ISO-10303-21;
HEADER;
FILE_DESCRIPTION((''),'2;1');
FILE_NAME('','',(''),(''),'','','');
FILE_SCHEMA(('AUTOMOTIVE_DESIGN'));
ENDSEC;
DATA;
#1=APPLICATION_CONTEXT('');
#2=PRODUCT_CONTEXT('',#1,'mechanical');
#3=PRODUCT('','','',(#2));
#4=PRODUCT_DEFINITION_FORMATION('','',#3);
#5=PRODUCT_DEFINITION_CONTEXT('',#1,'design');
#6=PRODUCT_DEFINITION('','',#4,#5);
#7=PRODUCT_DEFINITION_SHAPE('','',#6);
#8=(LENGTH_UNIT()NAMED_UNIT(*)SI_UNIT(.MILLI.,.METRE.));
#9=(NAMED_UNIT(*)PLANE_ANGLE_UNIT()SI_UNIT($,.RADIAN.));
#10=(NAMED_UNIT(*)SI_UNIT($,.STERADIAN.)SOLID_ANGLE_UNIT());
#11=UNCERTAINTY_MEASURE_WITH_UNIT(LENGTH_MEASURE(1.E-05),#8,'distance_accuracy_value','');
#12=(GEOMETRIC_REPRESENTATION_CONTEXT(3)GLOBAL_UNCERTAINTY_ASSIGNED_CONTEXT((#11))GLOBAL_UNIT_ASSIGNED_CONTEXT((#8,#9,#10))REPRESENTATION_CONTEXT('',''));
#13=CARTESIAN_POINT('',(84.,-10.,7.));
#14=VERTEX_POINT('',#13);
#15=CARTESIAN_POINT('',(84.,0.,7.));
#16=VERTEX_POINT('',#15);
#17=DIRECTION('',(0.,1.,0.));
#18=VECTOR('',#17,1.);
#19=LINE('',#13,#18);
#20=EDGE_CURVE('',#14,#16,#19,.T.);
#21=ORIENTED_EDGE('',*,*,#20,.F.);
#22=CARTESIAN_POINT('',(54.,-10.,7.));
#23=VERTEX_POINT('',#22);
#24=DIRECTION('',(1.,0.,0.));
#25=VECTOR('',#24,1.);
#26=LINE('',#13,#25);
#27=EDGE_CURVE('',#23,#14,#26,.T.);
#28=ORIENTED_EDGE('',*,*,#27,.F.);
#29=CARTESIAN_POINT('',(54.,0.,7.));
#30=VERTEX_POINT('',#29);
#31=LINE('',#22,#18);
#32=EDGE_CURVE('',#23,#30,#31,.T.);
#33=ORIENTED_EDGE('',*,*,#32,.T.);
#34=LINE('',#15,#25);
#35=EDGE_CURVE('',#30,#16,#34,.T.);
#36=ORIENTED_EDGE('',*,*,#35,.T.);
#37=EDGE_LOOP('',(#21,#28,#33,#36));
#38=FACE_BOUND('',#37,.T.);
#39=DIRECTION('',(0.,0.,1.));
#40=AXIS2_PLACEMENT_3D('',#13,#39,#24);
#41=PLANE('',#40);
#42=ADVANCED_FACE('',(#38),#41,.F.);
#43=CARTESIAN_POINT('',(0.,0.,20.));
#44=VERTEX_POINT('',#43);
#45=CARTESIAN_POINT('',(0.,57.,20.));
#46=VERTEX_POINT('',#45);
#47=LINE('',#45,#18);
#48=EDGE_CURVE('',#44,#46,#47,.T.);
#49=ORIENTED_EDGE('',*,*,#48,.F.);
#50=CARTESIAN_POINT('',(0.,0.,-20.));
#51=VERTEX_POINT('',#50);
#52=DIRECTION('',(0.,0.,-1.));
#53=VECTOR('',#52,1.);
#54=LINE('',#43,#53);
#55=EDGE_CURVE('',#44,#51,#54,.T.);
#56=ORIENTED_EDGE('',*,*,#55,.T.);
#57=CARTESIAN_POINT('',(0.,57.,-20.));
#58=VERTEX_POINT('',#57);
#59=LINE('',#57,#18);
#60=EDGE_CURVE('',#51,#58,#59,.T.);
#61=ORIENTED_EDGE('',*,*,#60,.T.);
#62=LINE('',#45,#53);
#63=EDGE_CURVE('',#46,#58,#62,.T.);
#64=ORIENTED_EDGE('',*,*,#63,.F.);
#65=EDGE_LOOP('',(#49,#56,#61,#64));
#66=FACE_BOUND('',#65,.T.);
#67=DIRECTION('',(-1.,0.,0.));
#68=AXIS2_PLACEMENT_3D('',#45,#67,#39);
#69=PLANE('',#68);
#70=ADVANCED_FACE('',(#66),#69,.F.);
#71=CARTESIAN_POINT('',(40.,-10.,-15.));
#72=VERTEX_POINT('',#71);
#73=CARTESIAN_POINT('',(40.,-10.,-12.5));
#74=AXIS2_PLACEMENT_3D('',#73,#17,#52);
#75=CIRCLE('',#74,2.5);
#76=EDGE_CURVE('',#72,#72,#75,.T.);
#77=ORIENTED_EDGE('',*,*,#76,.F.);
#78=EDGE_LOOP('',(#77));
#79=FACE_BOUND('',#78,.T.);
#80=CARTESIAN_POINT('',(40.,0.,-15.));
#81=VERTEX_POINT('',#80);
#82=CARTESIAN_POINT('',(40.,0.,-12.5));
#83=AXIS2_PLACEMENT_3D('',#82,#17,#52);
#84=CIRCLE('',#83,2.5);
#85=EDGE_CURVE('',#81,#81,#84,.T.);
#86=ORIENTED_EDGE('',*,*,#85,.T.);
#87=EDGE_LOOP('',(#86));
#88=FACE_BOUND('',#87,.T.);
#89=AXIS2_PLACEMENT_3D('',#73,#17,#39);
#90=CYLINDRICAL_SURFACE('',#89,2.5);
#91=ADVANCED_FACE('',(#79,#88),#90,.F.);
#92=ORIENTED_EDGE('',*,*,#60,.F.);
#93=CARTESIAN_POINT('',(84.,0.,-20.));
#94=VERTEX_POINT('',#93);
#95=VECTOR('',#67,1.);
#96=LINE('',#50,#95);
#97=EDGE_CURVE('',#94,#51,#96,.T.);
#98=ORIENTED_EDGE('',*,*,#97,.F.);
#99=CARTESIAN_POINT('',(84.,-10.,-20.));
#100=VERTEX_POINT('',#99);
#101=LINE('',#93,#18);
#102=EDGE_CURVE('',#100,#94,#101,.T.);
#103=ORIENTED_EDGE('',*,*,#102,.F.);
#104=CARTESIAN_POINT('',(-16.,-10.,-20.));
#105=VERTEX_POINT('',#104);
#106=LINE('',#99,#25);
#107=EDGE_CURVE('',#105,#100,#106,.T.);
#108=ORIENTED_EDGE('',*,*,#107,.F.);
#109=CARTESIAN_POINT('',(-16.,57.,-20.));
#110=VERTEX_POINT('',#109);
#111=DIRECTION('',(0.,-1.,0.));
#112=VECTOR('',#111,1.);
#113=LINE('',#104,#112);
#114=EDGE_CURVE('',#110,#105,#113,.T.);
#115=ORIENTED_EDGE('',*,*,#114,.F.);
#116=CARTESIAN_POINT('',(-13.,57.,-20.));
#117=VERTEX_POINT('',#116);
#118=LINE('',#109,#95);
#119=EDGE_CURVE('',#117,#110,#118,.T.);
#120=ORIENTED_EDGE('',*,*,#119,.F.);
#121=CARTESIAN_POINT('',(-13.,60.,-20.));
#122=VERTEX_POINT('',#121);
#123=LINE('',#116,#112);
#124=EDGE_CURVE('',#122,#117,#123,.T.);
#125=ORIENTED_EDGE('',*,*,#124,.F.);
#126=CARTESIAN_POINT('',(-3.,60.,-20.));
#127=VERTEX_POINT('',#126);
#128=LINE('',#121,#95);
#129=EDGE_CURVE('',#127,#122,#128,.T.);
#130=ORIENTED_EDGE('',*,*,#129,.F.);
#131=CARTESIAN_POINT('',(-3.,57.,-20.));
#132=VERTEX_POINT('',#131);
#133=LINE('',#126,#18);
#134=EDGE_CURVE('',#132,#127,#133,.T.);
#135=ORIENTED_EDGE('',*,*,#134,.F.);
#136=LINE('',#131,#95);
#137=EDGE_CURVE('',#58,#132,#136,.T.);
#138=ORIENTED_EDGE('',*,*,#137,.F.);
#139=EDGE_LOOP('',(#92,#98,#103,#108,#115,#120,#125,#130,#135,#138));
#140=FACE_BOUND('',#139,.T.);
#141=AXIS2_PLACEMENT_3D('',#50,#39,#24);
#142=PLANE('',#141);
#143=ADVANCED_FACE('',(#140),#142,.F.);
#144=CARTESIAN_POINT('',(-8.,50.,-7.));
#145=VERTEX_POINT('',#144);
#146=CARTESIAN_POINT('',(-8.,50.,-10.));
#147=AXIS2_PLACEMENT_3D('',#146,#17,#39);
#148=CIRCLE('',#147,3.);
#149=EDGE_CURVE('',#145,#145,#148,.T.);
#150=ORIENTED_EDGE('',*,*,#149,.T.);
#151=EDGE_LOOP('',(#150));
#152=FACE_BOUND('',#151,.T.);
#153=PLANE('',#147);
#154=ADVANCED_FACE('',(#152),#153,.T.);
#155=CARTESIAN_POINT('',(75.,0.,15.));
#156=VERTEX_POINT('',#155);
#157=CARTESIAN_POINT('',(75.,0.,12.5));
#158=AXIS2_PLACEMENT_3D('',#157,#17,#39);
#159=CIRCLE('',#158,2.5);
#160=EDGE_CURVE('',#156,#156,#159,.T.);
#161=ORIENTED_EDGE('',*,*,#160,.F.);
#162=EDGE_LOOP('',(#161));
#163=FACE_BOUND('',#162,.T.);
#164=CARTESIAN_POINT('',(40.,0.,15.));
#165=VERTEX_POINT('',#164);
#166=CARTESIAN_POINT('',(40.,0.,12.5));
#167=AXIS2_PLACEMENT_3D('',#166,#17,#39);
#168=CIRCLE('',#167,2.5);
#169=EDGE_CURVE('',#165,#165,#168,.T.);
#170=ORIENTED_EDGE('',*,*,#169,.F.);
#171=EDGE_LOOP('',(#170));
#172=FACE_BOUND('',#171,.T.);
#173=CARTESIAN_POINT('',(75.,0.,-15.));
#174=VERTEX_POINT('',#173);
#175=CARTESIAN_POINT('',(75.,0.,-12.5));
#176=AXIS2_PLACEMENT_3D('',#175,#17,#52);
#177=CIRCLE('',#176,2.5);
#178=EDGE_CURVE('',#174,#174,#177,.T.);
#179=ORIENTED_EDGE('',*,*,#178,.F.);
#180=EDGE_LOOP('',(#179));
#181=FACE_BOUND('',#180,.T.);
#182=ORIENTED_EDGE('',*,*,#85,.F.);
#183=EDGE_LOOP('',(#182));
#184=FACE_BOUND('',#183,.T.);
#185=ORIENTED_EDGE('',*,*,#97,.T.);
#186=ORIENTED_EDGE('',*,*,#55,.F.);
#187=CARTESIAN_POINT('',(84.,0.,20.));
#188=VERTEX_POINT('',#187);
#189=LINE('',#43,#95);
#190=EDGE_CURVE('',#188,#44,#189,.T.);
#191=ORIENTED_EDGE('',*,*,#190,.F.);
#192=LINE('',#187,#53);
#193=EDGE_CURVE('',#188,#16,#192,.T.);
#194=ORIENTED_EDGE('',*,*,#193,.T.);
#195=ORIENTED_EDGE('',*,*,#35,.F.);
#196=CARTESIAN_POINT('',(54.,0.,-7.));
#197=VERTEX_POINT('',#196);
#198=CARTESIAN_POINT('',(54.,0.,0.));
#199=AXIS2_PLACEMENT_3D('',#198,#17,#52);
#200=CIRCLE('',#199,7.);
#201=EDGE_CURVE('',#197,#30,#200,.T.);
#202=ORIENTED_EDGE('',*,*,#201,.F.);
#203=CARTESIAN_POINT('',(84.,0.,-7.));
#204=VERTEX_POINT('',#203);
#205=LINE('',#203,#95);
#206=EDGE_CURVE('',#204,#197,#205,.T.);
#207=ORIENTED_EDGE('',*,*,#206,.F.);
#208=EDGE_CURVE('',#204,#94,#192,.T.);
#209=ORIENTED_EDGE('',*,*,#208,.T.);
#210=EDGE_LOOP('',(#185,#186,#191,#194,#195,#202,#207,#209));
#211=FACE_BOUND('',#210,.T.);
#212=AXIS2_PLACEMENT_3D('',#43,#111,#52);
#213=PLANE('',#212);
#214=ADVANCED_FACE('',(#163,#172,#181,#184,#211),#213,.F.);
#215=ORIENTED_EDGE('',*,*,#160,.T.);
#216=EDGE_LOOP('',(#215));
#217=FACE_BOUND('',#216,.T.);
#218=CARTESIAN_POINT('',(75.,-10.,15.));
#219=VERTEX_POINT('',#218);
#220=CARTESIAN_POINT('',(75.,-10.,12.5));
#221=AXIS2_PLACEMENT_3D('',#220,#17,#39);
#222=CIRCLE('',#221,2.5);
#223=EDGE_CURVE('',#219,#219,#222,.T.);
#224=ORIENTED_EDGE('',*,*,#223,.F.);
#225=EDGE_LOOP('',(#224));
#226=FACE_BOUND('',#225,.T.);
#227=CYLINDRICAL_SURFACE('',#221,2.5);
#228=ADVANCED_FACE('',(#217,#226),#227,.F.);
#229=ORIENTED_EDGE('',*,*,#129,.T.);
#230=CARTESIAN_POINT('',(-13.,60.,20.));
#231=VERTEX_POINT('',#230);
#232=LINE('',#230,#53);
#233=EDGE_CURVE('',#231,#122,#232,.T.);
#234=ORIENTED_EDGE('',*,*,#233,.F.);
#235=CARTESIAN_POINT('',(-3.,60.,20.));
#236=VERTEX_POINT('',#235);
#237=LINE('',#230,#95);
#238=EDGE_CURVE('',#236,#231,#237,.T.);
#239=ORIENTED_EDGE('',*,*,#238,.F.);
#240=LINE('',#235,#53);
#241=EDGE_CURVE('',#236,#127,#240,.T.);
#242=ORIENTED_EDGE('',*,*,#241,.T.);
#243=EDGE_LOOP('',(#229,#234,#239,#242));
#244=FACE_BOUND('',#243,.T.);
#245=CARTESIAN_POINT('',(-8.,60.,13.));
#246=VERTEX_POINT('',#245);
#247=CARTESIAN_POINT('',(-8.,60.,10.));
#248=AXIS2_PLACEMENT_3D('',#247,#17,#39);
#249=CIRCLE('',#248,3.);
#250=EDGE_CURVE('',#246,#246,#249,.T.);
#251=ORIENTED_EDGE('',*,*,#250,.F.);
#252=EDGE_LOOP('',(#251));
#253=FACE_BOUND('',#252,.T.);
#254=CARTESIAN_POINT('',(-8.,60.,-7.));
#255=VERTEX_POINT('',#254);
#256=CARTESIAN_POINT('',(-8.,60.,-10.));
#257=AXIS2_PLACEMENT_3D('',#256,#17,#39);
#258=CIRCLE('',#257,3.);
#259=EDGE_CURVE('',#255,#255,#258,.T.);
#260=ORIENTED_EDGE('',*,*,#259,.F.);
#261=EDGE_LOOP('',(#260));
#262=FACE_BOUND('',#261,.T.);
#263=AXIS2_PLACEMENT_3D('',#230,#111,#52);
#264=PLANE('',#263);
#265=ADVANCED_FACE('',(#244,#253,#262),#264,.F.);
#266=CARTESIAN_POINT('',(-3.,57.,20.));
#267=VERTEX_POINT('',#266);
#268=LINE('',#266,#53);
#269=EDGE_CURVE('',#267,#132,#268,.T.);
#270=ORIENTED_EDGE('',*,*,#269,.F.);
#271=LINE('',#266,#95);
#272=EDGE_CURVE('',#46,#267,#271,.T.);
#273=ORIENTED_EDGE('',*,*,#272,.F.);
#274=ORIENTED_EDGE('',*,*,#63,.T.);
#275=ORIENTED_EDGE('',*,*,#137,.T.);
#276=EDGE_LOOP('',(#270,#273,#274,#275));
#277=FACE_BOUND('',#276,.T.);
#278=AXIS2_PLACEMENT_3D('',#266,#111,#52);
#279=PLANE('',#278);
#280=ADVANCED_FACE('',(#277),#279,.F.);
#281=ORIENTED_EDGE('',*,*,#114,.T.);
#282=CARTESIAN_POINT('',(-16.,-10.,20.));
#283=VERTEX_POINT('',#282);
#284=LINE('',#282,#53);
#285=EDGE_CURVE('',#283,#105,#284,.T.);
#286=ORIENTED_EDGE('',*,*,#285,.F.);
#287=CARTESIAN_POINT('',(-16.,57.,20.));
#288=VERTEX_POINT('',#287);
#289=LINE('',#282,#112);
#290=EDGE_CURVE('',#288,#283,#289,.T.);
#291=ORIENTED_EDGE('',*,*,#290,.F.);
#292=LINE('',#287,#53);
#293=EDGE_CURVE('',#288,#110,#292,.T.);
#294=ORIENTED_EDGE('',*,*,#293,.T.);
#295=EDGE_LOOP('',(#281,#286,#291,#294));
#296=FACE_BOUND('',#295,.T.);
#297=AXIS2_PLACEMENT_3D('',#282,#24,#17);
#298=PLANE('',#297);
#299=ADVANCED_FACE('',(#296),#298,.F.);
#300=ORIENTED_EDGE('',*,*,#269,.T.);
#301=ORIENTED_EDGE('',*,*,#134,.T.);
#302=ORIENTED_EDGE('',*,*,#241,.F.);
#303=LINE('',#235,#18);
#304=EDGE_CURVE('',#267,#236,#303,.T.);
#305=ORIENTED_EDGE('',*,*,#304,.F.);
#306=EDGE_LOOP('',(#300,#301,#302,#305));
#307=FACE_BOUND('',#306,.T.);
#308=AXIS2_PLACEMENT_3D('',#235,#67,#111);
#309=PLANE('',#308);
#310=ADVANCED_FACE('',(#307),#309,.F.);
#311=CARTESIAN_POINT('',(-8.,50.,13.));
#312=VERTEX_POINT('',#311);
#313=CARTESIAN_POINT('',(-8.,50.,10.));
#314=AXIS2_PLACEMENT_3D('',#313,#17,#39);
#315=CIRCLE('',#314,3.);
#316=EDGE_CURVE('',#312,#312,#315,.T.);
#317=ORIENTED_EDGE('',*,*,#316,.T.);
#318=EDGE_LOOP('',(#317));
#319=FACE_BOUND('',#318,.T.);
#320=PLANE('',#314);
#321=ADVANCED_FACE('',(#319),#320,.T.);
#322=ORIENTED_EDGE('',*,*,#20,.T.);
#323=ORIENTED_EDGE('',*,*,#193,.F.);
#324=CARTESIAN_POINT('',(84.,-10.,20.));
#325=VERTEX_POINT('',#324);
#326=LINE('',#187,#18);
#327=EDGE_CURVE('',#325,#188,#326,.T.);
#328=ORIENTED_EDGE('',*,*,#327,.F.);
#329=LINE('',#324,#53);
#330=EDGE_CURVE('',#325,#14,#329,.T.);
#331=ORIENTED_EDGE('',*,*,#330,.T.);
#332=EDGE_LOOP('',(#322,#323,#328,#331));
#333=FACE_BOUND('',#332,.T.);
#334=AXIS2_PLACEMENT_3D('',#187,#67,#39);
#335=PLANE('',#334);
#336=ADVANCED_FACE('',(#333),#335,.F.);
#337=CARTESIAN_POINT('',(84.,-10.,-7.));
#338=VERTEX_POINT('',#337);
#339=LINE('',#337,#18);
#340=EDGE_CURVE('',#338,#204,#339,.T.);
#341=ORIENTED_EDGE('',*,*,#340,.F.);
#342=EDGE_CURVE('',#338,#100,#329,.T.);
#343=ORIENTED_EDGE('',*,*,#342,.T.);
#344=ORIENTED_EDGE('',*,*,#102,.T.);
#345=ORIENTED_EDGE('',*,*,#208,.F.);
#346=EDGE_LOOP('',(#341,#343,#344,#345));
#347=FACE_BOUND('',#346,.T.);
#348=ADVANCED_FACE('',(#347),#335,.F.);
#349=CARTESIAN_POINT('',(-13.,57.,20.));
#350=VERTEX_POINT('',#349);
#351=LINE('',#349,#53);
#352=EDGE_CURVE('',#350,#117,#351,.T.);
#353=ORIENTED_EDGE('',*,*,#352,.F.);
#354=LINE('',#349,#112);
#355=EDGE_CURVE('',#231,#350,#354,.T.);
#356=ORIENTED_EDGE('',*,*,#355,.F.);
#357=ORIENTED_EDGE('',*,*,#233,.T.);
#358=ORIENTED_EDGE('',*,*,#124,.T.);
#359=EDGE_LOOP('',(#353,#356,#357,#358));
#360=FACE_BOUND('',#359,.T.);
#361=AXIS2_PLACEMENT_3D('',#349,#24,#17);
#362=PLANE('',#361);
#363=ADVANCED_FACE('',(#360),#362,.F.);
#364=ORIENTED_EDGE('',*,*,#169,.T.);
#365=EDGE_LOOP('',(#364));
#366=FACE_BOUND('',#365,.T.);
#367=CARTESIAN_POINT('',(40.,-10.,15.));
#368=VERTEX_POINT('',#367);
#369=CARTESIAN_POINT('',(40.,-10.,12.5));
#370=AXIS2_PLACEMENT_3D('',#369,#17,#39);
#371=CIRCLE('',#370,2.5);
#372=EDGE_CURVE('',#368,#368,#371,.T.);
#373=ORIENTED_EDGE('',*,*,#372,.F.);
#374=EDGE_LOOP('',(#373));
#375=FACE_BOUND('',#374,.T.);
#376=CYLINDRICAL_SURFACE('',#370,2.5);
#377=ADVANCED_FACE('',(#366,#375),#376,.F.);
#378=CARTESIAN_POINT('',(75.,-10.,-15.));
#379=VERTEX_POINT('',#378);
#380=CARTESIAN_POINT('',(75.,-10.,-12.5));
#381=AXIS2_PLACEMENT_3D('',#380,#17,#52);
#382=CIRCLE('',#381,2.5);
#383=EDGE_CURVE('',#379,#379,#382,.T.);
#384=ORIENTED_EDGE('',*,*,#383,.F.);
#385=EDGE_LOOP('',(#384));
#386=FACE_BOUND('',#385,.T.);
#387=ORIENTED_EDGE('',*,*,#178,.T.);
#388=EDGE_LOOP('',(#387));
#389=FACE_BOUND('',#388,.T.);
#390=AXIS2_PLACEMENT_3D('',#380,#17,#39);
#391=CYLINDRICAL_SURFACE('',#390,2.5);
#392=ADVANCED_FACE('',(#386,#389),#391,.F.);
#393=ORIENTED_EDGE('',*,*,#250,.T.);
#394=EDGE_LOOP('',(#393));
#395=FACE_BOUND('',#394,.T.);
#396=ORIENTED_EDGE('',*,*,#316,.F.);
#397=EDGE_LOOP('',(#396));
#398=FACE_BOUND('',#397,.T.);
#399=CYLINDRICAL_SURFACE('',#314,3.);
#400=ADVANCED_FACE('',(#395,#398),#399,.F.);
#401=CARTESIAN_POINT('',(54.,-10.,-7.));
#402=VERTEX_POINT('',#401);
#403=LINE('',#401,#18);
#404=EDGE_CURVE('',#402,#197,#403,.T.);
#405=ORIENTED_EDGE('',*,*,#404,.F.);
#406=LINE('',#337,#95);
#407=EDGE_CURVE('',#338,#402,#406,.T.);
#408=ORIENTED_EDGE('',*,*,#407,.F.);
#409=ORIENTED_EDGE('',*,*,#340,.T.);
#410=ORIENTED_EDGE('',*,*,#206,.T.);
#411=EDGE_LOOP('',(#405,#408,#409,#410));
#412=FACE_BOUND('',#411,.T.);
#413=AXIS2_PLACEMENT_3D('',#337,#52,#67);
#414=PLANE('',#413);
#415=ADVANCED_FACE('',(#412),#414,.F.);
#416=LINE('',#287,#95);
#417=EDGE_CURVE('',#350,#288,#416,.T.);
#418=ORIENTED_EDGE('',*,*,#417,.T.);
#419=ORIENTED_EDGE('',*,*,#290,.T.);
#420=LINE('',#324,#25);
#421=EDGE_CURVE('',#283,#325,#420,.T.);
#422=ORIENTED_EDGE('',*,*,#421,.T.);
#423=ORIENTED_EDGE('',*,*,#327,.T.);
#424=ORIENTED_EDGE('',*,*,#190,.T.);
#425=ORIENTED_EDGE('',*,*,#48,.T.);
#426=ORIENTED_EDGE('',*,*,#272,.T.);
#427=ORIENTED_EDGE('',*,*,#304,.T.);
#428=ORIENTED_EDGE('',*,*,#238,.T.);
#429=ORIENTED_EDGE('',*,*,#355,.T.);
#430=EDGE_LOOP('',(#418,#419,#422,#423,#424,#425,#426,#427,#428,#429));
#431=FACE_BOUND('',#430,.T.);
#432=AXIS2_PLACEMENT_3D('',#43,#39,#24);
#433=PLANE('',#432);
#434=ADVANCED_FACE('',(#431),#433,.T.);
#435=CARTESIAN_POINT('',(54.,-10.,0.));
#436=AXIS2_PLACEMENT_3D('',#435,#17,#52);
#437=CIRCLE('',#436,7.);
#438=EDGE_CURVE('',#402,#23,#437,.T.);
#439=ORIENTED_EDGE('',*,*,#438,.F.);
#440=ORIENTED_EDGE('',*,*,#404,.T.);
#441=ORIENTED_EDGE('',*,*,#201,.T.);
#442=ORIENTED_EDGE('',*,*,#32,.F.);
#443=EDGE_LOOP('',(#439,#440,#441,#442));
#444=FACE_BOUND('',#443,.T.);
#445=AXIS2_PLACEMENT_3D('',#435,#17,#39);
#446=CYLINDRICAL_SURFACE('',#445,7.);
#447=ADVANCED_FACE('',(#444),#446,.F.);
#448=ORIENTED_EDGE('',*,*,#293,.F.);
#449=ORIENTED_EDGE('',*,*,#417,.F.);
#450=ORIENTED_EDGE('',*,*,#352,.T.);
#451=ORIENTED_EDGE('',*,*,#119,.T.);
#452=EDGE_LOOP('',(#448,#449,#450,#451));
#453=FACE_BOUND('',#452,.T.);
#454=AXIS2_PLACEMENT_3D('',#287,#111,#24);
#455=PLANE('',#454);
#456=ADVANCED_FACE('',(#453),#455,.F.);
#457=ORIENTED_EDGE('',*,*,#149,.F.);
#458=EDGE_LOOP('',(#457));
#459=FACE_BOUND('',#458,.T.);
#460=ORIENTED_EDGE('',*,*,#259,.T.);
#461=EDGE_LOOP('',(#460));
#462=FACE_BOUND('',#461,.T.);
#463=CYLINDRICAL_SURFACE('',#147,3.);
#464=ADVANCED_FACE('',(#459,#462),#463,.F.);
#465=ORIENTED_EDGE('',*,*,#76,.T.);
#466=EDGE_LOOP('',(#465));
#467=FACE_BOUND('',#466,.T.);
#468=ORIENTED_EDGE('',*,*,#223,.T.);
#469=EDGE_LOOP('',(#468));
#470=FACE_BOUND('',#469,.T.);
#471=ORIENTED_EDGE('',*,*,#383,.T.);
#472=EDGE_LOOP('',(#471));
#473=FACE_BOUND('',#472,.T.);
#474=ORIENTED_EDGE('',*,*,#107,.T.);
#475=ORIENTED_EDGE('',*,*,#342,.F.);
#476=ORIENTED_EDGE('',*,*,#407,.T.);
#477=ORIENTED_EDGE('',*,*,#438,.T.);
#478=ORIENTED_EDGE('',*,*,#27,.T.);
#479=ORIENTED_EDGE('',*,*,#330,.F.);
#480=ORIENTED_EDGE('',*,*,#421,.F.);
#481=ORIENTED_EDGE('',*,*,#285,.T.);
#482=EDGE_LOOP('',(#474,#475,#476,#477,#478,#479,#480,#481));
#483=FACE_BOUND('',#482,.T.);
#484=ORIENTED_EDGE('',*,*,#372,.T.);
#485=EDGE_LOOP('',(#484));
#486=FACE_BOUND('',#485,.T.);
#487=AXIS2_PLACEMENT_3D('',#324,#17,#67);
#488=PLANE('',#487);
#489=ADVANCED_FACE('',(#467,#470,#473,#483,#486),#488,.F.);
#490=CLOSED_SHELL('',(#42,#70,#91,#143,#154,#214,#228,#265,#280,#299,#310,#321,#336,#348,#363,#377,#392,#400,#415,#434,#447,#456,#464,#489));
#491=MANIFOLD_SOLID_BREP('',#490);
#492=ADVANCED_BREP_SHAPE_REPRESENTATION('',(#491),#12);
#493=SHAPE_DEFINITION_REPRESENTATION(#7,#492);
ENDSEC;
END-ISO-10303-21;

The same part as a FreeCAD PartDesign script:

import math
import FreeCAD as App
import Part
import Sketcher
from FreeCAD import Vector


def add_polygon(sketch, points):
    """Adds a closed chain of lines whose ends are joined by coincident constraints."""
    first, n = sketch.GeometryCount, len(points)
    for a, b in zip(points, points[1:] + points[:1]):
        sketch.addGeometry(Part.LineSegment(App.Vector(*a, 0), App.Vector(*b, 0)), False)
    for i in range(n):
        sketch.addConstraint(Sketcher.Constraint("Coincident", first + i, 2, first + (i + 1) % n, 1))

doc = App.newDocument("Part")
body = doc.addObject("PartDesign::Body", "Body")

sketch1 = body.newObject("Sketcher::SketchObject", "Sketch")
sketch1.AttachmentSupport = (doc.getObject("XY_Plane"), [""])
sketch1.MapMode = "FlatFace"
add_polygon(sketch1, [(84, 0), (0, 0), (0, 57), (-3, 57), (-3, 60), (-13, 60), (-13, 57), (-16, 57), (-16, -10), (84, -10)])
sketch1.addConstraint([
    Sketcher.Constraint("Horizontal", 0),
    Sketcher.Constraint("Vertical", 1),
    Sketcher.Constraint("Horizontal", 2),
    Sketcher.Constraint("Vertical", 3),
    Sketcher.Constraint("Horizontal", 4),
    Sketcher.Constraint("Vertical", 5),
    Sketcher.Constraint("Horizontal", 6),
    Sketcher.Constraint("Vertical", 7),
    Sketcher.Constraint("Horizontal", 8),
    Sketcher.Constraint("Vertical", 9),
    Sketcher.Constraint("Coincident", 0, 2, -1, 1),
    Sketcher.Constraint("Horizontal", 2, 2, 5, 2),
    Sketcher.Constraint("Equal", 2, 6),
    Sketcher.Constraint("Equal", 6, 3),
    Sketcher.Constraint("Equal", 4, 9),
    Sketcher.Constraint("DistanceX", 0, 2, 0, 1, 84.0),
    Sketcher.Constraint("DistanceX", 2, 2, 2, 1, 3.0),
    Sketcher.Constraint("DistanceX", 4, 2, 4, 1, 10.0),
    Sketcher.Constraint("DistanceY", 1, 1, 1, 2, 57.0),
])
pad1 = body.newObject("PartDesign::Pad", "Pad")
pad1.Profile = sketch1
pad1.Length = 40
pad1.Midplane = True

sketch2 = body.newObject("Sketcher::SketchObject", "Sketch001")
sketch2.AttachmentSupport = (doc.getObject("XZ_Plane"), [""])
sketch2.MapMode = "FlatFace"
sketch2.AttachmentOffset = App.Placement(Vector(0, 0, -60), App.Rotation())
sketch2.addGeometry([
    Part.Circle(Vector(-8, -10, 0), Vector(0, 0, 1), 3),
    Part.Circle(Vector(-8, 10, 0), Vector(0, 0, 1), 3),
], False)
sketch2.addConstraint([
    Sketcher.Constraint("Equal", 0, 1),
    Sketcher.Constraint("Symmetric", 0, 3, 1, 3, -1),
    Sketcher.Constraint("Diameter", 0, 6.0),
    Sketcher.Constraint("DistanceX", 0, 3, -1, 1, 8.0),
    Sketcher.Constraint("DistanceY", 0, 3, -1, 1, 10.0),
])
pocket1 = body.newObject("PartDesign::Pocket", "Pocket")
pocket1.Profile = sketch2
pocket1.Length = 10
pocket1.Reversed = True

sketch3 = body.newObject("Sketcher::SketchObject", "Sketch002")
sketch3.AttachmentSupport = (doc.getObject("XZ_Plane"), [""])
sketch3.MapMode = "FlatFace"
sketch3.addGeometry([
    Part.Circle(Vector(40, 12.5, 0), Vector(0, 0, 1), 2.5),
    Part.Circle(Vector(40, -12.5, 0), Vector(0, 0, 1), 2.5),
    Part.Circle(Vector(75, -12.5, 0), Vector(0, 0, 1), 2.5),
    Part.Circle(Vector(75, 12.5, 0), Vector(0, 0, 1), 2.5),
    Part.LineSegment(Vector(84, -7, 0), Vector(54, -7, 0)),
    Part.ArcOfCircle(Part.Circle(Vector(54, 0, 0), Vector(0, 0, 1), 7), math.radians(90), math.radians(270)),
    Part.LineSegment(Vector(54, 7, 0), Vector(84, 7, 0)),
    Part.LineSegment(Vector(84, 7, 0), Vector(84, -7, 0)),
], False)
sketch3.addConstraint([
    Sketcher.Constraint("Tangent", 4, 2, 5, 2),
    Sketcher.Constraint("Tangent", 5, 1, 6, 1),
    Sketcher.Constraint("Coincident", 6, 2, 7, 1),
    Sketcher.Constraint("Coincident", 7, 2, 4, 1),
    Sketcher.Constraint("Horizontal", 4),
    Sketcher.Constraint("Horizontal", 6),
    Sketcher.Constraint("Vertical", 7),
    Sketcher.Constraint("Equal", 0, 1),
    Sketcher.Constraint("Equal", 1, 2),
    Sketcher.Constraint("Equal", 2, 3),
    Sketcher.Constraint("Symmetric", 0, 3, 1, 3, -1),
    Sketcher.Constraint("Symmetric", 2, 3, 3, 3, -1),
    Sketcher.Constraint("PointOnObject", 5, 3, -1),
    Sketcher.Constraint("Horizontal", 1, 3, 2, 3),
    Sketcher.Constraint("Diameter", 0, 5.0),
    Sketcher.Constraint("Radius", 5, 7.0),
    Sketcher.Constraint("DistanceX", 4, 2, 4, 1, 30.0),
    Sketcher.Constraint("DistanceX", -1, 1, 0, 3, 40.0),
    Sketcher.Constraint("DistanceX", -1, 1, 2, 3, 75.0),
    Sketcher.Constraint("DistanceX", -1, 1, 5, 3, 54.0),
    Sketcher.Constraint("DistanceY", 1, 3, 0, 3, 25.0),
])
pocket2 = body.newObject("PartDesign::Pocket", "Pocket001")
pocket2.Profile = sketch3
pocket2.Type = "ThroughAll"
pocket2.Reversed = True

doc.recompute()
